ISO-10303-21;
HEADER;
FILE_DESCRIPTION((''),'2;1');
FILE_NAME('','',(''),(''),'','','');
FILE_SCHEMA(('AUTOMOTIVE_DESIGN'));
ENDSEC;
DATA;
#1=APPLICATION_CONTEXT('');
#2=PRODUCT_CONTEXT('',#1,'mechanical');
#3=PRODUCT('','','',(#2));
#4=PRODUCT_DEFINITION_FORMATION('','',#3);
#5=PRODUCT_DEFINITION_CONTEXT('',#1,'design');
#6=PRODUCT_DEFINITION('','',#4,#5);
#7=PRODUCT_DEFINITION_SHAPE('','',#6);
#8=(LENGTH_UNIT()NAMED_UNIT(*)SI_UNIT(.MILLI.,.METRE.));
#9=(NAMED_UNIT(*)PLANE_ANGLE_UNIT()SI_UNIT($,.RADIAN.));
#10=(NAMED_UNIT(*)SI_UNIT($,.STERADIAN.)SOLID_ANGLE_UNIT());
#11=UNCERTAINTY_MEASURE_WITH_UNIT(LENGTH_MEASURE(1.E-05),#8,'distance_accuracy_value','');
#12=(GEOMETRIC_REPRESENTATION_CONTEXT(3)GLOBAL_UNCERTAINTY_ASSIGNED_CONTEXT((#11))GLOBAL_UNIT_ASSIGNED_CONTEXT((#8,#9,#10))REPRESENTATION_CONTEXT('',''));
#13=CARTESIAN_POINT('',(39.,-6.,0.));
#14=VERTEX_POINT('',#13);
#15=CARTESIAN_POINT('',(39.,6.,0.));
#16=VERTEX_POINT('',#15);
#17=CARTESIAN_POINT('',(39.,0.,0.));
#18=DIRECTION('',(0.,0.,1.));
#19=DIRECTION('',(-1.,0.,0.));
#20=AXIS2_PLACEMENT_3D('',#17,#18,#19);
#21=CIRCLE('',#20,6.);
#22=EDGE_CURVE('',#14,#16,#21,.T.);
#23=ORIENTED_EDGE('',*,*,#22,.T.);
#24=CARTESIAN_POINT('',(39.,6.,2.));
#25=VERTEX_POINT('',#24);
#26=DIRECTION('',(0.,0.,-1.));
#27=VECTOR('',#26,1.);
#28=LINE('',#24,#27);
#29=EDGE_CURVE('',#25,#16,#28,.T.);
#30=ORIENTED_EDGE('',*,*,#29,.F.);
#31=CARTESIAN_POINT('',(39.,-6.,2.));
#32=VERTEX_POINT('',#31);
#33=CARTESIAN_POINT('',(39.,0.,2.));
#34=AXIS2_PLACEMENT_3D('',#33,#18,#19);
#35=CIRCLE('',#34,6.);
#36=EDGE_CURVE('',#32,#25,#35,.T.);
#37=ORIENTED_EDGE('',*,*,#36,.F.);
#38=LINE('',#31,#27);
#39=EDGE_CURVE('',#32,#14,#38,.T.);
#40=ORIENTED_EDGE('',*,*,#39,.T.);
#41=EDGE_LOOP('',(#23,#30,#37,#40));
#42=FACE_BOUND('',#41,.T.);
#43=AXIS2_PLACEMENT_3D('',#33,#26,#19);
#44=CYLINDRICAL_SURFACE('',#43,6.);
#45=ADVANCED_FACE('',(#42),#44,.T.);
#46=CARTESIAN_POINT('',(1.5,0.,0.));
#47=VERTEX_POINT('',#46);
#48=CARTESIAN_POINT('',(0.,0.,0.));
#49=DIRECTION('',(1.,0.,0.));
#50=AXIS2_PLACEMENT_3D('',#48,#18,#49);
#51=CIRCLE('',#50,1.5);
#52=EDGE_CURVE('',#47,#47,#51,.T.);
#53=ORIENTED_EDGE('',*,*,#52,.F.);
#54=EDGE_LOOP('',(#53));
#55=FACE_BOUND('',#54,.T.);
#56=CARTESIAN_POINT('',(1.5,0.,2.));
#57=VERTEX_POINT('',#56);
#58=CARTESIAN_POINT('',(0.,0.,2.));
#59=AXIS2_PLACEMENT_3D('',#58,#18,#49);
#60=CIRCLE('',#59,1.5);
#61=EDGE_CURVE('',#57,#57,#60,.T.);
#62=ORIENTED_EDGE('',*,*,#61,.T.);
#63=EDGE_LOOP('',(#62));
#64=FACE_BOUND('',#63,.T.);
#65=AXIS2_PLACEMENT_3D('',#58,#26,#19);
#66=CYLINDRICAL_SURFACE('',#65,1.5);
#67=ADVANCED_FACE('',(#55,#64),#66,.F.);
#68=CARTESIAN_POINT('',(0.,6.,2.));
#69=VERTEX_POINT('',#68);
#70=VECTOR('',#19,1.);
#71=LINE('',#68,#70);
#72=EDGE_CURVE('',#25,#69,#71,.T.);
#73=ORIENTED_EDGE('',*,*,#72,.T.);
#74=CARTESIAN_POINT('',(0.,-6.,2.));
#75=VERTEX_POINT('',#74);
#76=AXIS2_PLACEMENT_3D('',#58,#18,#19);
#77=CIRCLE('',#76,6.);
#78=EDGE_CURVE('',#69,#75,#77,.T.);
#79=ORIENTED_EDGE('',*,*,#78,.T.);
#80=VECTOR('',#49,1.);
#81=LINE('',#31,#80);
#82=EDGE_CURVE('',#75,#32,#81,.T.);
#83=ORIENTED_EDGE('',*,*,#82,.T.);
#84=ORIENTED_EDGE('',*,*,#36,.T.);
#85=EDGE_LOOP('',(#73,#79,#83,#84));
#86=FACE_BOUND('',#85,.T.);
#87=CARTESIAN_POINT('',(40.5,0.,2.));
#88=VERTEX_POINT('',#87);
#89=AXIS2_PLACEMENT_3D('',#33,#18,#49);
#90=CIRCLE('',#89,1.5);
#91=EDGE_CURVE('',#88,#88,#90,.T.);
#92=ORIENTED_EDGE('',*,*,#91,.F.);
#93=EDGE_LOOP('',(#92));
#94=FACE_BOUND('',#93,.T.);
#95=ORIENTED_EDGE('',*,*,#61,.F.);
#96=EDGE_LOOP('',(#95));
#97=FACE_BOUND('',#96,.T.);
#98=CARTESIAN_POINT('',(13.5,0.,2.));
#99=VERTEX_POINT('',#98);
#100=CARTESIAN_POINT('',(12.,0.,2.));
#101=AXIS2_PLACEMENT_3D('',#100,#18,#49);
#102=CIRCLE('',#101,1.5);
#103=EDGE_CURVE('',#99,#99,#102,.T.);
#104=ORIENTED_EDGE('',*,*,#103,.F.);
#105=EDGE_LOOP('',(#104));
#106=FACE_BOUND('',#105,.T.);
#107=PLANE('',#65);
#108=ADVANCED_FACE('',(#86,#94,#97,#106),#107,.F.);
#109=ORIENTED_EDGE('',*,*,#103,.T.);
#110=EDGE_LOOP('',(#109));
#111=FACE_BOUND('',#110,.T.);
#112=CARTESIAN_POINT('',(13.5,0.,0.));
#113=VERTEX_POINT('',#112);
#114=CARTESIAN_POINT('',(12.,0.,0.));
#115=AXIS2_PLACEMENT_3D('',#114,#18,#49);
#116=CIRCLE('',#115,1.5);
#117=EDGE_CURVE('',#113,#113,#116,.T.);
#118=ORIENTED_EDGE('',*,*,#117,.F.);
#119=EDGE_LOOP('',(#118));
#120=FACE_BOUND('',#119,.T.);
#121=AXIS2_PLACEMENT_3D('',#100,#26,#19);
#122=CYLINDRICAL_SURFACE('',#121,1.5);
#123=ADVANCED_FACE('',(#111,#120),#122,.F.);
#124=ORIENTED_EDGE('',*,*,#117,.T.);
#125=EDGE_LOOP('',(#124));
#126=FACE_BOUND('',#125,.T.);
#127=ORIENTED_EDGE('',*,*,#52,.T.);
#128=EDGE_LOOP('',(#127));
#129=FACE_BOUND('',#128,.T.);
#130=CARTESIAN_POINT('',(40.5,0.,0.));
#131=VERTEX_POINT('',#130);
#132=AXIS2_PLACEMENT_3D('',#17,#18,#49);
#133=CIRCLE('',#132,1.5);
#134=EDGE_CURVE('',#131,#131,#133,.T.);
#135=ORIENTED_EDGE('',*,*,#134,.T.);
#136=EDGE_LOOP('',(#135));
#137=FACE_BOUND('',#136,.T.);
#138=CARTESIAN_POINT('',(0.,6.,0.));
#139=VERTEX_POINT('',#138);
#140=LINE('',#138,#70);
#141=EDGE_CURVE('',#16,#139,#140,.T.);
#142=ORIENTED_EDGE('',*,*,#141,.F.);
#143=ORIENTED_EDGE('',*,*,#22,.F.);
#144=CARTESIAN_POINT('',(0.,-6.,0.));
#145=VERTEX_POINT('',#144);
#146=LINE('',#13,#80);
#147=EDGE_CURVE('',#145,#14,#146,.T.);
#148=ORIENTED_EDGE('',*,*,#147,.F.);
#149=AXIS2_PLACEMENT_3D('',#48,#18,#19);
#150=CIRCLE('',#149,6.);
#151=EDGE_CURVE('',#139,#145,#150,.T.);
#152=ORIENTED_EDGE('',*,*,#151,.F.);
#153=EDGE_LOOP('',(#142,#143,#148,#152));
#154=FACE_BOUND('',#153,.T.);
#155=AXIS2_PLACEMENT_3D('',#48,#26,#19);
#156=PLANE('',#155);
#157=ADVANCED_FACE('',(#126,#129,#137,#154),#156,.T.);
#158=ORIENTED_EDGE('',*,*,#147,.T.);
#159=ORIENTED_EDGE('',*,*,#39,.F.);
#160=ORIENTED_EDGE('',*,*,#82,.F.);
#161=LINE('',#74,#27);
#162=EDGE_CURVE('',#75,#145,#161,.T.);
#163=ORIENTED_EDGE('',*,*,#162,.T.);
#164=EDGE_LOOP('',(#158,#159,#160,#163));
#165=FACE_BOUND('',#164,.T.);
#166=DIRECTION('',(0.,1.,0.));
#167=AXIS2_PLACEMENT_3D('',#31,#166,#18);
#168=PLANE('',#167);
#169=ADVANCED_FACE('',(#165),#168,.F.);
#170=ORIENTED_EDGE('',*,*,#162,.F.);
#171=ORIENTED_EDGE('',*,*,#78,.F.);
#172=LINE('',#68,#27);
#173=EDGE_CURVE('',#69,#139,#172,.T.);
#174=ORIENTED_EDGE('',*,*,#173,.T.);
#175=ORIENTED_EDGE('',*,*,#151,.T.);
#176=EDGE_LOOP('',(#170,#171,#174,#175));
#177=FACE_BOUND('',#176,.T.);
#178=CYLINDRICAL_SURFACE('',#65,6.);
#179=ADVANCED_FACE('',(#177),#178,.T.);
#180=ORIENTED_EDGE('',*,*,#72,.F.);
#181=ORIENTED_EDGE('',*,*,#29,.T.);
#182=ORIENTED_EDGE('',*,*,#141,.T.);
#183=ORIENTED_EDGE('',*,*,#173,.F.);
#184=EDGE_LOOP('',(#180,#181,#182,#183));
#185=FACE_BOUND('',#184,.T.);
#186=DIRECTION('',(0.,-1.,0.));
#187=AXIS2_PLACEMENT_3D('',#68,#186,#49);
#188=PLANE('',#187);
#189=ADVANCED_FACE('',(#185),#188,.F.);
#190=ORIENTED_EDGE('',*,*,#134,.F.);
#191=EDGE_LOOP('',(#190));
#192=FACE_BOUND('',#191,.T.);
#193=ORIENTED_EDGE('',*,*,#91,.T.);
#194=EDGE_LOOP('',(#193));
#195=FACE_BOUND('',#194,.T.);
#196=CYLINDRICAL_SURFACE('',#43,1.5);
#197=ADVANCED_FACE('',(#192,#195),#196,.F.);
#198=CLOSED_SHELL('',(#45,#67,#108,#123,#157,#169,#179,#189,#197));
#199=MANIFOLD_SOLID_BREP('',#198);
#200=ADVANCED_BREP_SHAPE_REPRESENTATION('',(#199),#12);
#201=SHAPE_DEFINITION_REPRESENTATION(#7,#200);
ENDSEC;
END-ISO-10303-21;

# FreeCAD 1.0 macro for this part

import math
import FreeCAD as App
import Part
import Sketcher

doc = App.newDocument("Part")
body = doc.addObject("PartDesign::Body", "Body")

sketch1 = body.newObject("Sketcher::SketchObject", "Sketch")
sketch1.AttachmentSupport = (doc.getObject("XY_Plane"), [""])
sketch1.MapMode = "FlatFace"
sketch1.addGeometry(Part.LineSegment(App.Vector(39, 6, 0), App.Vector(0, 6, 0)), False)
sketch1.addGeometry(Part.ArcOfCircle(Part.Circle(App.Vector(0, 0, 0), App.Vector(0, 0, 1), 6), math.radians(90), math.radians(270)), False)
sketch1.addGeometry(Part.LineSegment(App.Vector(0, -6, 0), App.Vector(39, -6, 0)), False)
sketch1.addGeometry(Part.ArcOfCircle(Part.Circle(App.Vector(39, 0, 0), App.Vector(0, 0, 1), 6), math.radians(-90), math.radians(90)), False)
sketch1.addGeometry(Part.Circle(App.Vector(39, 0, 0), App.Vector(0, 0, 1), 1.5), False)
sketch1.addGeometry(Part.Circle(App.Vector(12, 0, 0), App.Vector(0, 0, 1), 1.5), False)
sketch1.addGeometry(Part.Circle(App.Vector(0, 0, 0), App.Vector(0, 0, 1), 1.5), False)
sketch1.addConstraint(Sketcher.Constraint("Tangent", 0, 2, 1, 1))
sketch1.addConstraint(Sketcher.Constraint("Tangent", 1, 2, 2, 1))
sketch1.addConstraint(Sketcher.Constraint("Tangent", 2, 2, 3, 1))
sketch1.addConstraint(Sketcher.Constraint("Tangent", 3, 2, 0, 1))
sketch1.addConstraint(Sketcher.Constraint("Horizontal", 0))
sketch1.addConstraint(Sketcher.Constraint("Horizontal", 2))
sketch1.addConstraint(Sketcher.Constraint("Coincident", 1, 3, -1, 1))
sketch1.addConstraint(Sketcher.Constraint("Coincident", 6, 3, -1, 1))
sketch1.addConstraint(Sketcher.Constraint("Coincident", 4, 3, 3, 3))
sketch1.addConstraint(Sketcher.Constraint("Equal", 4, 5))
sketch1.addConstraint(Sketcher.Constraint("Equal", 5, 6))
sketch1.addConstraint(Sketcher.Constraint("PointOnObject", 5, 3, -1))
sketch1.addConstraint(Sketcher.Constraint("Diameter", 4, 3.0))
sketch1.addConstraint(Sketcher.Constraint("Radius", 1, 6.0))
sketch1.addConstraint(Sketcher.Constraint("DistanceX", 0, 2, 0, 1, 39.0))
sketch1.addConstraint(Sketcher.Constraint("DistanceX", -1, 1, 5, 3, 12.0))
pad1 = body.newObject("PartDesign::Pad", "Pad")
pad1.Profile = sketch1
pad1.Length = 2

doc.recompute()
